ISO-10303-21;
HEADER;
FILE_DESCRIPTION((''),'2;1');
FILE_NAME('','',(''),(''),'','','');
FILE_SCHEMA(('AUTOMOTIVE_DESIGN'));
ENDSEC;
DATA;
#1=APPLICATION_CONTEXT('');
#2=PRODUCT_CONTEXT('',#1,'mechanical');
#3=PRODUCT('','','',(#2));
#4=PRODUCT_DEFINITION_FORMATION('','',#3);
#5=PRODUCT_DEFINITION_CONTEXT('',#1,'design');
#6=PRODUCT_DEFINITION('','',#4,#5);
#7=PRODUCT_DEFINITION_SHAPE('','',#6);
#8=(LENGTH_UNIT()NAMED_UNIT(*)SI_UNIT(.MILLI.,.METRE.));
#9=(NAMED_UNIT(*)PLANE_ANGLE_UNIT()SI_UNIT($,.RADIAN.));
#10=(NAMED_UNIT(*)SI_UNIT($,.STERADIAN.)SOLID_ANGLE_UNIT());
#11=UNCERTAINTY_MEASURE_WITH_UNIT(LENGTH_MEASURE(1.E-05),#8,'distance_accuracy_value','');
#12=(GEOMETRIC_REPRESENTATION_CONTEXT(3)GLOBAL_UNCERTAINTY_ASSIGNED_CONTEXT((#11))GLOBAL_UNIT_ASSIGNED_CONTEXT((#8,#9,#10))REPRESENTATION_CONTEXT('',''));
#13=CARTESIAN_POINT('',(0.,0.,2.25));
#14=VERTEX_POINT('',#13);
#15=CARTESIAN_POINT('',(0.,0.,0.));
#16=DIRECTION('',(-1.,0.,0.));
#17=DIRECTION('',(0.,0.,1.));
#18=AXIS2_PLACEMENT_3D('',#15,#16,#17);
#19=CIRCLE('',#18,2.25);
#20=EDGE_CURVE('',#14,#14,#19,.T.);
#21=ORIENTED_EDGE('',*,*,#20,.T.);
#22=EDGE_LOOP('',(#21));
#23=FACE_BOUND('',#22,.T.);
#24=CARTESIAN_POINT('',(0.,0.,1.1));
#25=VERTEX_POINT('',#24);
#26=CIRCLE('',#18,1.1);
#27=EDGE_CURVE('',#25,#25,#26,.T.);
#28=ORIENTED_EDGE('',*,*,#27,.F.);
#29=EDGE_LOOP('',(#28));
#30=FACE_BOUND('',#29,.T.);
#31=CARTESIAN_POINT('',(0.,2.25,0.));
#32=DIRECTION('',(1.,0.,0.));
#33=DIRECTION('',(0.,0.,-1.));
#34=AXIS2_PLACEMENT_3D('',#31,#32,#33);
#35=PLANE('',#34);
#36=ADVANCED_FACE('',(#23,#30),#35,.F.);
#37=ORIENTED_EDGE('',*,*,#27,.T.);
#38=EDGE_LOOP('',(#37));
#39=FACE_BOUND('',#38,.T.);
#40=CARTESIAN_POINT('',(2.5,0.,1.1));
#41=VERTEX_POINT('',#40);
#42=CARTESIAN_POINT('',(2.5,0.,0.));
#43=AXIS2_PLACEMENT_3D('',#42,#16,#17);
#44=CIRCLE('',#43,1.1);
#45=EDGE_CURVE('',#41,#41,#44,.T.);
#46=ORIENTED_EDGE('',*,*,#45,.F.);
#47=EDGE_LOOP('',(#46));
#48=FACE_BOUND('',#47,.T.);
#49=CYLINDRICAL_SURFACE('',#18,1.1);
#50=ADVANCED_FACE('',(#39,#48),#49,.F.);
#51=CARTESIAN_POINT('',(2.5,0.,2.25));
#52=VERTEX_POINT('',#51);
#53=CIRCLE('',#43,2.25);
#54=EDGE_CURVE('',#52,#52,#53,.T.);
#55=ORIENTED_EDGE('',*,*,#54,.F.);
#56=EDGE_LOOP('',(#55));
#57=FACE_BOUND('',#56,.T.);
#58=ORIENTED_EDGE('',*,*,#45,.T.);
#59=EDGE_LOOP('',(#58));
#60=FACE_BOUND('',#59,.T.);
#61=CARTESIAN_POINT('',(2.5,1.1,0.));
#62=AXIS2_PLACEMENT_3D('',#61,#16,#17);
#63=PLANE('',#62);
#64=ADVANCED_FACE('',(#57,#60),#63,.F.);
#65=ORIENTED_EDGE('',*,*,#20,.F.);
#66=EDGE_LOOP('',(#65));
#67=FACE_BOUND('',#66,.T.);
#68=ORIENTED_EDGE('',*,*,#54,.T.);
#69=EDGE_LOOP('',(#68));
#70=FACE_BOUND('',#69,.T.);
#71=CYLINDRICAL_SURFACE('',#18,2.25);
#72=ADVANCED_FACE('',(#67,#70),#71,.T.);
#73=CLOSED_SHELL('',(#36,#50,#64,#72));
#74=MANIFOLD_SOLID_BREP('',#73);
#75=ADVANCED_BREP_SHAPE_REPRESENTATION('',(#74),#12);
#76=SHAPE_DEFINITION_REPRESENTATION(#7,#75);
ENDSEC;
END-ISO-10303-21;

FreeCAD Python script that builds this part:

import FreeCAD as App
import Part
import Sketcher
from FreeCAD import Vector
Q = App.Units.Quantity


def add_polygon(sketch, points):
    """Adds a closed chain of lines whose ends are joined by coincident constraints."""
    first, n = sketch.GeometryCount, len(points)
    for a, b in zip(points, points[1:] + points[:1]):
        sketch.addGeometry(Part.LineSegment(App.Vector(*a, 0), App.Vector(*b, 0)), False)
    for i in range(n):
        sketch.addConstraint(Sketcher.Constraint("Coincident", first + i, 2, first + (i + 1) % n, 1))

doc = App.newDocument("Part")
params = doc.addObject("Spreadsheet::Sheet", "Params")
for row, (alias, value) in enumerate([
    ("sketch1_width", "2.5 mm"),
    ("sketch1_height", "1.15 mm"),
    ("revolution_angle", "360 deg"),
], start=1):
    params.set(f"A{row}", alias)
    params.set(f"B{row}", "=" + value)
    params.setAlias(f"B{row}", alias)

body = doc.addObject("PartDesign::Body", "Body")

sketch1 = body.newObject("Sketcher::SketchObject", "Sketch")
sketch1.AttachmentSupport = (doc.getObject("XY_Plane"), [""])
sketch1.MapMode = "FlatFace"
add_polygon(sketch1, [(0, 2.25), (0, 1.1), (2.5, 1.1), (2.5, 2.25)])
sketch1.addConstraint([
    Sketcher.Constraint("Vertical", 0),
    Sketcher.Constraint("Horizontal", 1),
    Sketcher.Constraint("Vertical", 2),
    Sketcher.Constraint("Horizontal", 3),
    Sketcher.Constraint("PointOnObject", 0, 2, -2),
    Sketcher.Constraint("DistanceX", 1, 1, 1, 2, Q("2.5 mm")),
    Sketcher.Constraint("DistanceY", 0, 2, 0, 1, Q("1.15 mm")),
    Sketcher.Constraint("DistanceY", -1, 1, 0, 2, Q("1.1 mm")),
])
sketch1.setExpression("Constraints[9]", "Params.sketch1_width")
sketch1.setExpression("Constraints[10]", "Params.sketch1_height")
revolution = body.newObject("PartDesign::Revolution", "Revolution")
revolution.Profile = sketch1
revolution.ReferenceAxis = (sketch1, ["H_Axis"])
revolution.setExpression("Angle", "Params.revolution_angle")

doc.recompute()
